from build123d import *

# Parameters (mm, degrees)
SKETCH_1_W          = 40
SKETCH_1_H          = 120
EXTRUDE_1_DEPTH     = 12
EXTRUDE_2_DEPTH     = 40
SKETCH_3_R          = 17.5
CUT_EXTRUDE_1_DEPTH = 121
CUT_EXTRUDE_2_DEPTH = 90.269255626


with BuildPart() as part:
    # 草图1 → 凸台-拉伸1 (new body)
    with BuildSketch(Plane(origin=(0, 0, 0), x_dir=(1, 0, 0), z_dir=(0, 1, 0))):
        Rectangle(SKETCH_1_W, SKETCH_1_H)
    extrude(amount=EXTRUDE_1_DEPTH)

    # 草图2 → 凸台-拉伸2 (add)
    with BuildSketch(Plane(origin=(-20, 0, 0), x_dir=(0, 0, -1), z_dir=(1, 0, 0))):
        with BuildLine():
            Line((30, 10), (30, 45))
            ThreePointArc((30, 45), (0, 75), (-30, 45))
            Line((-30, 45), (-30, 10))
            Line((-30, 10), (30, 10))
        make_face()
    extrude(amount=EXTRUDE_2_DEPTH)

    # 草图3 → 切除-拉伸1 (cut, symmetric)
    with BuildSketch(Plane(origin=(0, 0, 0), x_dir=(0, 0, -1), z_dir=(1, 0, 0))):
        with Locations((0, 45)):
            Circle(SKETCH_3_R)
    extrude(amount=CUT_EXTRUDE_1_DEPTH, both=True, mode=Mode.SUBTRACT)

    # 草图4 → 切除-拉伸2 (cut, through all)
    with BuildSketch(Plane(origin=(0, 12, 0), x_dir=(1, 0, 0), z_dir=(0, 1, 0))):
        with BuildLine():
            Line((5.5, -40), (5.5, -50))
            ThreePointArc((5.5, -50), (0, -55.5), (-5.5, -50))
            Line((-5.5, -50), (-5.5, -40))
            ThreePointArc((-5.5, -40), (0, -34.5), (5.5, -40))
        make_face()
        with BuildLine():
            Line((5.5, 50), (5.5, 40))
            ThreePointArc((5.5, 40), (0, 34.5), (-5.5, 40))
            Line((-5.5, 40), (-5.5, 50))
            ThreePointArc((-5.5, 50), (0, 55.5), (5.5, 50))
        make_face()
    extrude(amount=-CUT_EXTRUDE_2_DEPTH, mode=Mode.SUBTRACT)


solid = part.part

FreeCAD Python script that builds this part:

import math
import FreeCAD as App
import Part
import Sketcher
from FreeCAD import Vector


def add_polygon(sketch, points):
    """Adds a closed chain of lines whose ends are joined by coincident constraints."""
    first, n = sketch.GeometryCount, len(points)
    for a, b in zip(points, points[1:] + points[:1]):
        sketch.addGeometry(Part.LineSegment(App.Vector(*a, 0), App.Vector(*b, 0)), False)
    for i in range(n):
        sketch.addConstraint(Sketcher.Constraint("Coincident", first + i, 2, first + (i + 1) % n, 1))

doc = App.newDocument("Part")
params = doc.addObject("Spreadsheet::Sheet", "Params")
for row, (alias, value) in enumerate([
    ("sketch1_width", "40 mm"),
    ("sketch1_height", "120 mm"),
    ("pad1_length", "12 mm"),
    ("sketch2_radius", "30 mm"),
    ("sketch2_width", "35 mm"),
    ("pad2_length", "40 mm"),
    ("sketch3_diameter", "35 mm"),
    ("pocket1_length", "242 mm"),
    ("sketch4_radius", "5.5 mm"),
    ("sketch4_height", "10 mm"),
], start=1):
    params.set(f"A{row}", alias)
    params.set(f"B{row}", "=" + value)
    params.setAlias(f"B{row}", alias)

body = doc.addObject("PartDesign::Body", "Body")

# Sketch on XZ plane
sketch1 = body.newObject("Sketcher::SketchObject", "Sketch")
sketch1.AttachmentSupport = (doc.getObject("XZ_Plane"), [""])
sketch1.MapMode = "FlatFace"
add_polygon(sketch1, [(-20, -60), (-20, 60), (20, 60), (20, -60)])  # lines 0-3
sketch1.addConstraint(Sketcher.Constraint("Vertical", 0))
sketch1.addConstraint(Sketcher.Constraint("Horizontal", 1))
sketch1.addConstraint(Sketcher.Constraint("Vertical", 2))
sketch1.addConstraint(Sketcher.Constraint("Horizontal", 3))
sketch1.addConstraint(Sketcher.Constraint("Symmetric", 0, 2, 2, 2, -1, 1))
sketch1.addConstraint(Sketcher.Constraint("DistanceX", 1, 1, 1, 2, 40.0))
sketch1.addConstraint(Sketcher.Constraint("DistanceY", 0, 1, 0, 2, 120.0))
sketch1.setExpression("Constraints[9]", "Params.sketch1_width")
sketch1.setExpression("Constraints[10]", "Params.sketch1_height")
pad1 = body.newObject("PartDesign::Pad", "Pad")
pad1.Profile = sketch1
pad1.setExpression("Length", "Params.pad1_length")
pad1.Reversed = True

# Sketch on YZ plane
sketch2 = body.newObject("Sketcher::SketchObject", "Sketch001")
sketch2.AttachmentSupport = (doc.getObject("YZ_Plane"), [""])
sketch2.MapMode = "FlatFace"
sketch2.AttachmentOffset = App.Placement(Vector(0, 0, -20), App.Rotation())
sketch2.addGeometry(Part.LineSegment(Vector(10, -30, 0), Vector(45, -30, 0)), False)
sketch2.addGeometry(Part.ArcOfCircle(Part.Circle(Vector(45, 0, 0), Vector(0, 0, 1), 30), math.radians(-90), math.radians(90)), False)
sketch2.addGeometry(Part.LineSegment(Vector(45, 30, 0), Vector(10, 30, 0)), False)
sketch2.addGeometry(Part.LineSegment(Vector(10, 30, 0), Vector(10, -30, 0)), False)
sketch2.addConstraint(Sketcher.Constraint("Tangent", 0, 2, 1, 1))
sketch2.addConstraint(Sketcher.Constraint("Tangent", 1, 2, 2, 1))
sketch2.addConstraint(Sketcher.Constraint("Coincident", 2, 2, 3, 1))
sketch2.addConstraint(Sketcher.Constraint("Coincident", 3, 2, 0, 1))
sketch2.addConstraint(Sketcher.Constraint("Horizontal", 0))
sketch2.addConstraint(Sketcher.Constraint("Horizontal", 2))
sketch2.addConstraint(Sketcher.Constraint("Vertical", 3))
sketch2.addConstraint(Sketcher.Constraint("PointOnObject", 1, 3, -1))
sketch2.addConstraint(Sketcher.Constraint("Radius", 1, 30.0))
sketch2.addConstraint(Sketcher.Constraint("DistanceX", 0, 1, 0, 2, 35.0))
sketch2.addConstraint(Sketcher.Constraint("DistanceX", -1, 1, 1, 3, 45.0))
sketch2.setExpression("Constraints[8]", "Params.sketch2_radius")
sketch2.setExpression("Constraints[9]", "Params.sketch2_width")
pad2 = body.newObject("PartDesign::Pad", "Pad001")
pad2.Profile = sketch2
pad2.setExpression("Length", "Params.pad2_length")

# Sketch on YZ plane
sketch3 = body.newObject("Sketcher::SketchObject", "Sketch002")
sketch3.AttachmentSupport = (doc.getObject("YZ_Plane"), [""])
sketch3.MapMode = "FlatFace"
sketch3.addGeometry(Part.Circle(Vector(45, 0, 0), Vector(0, 0, 1), 17.5), False)
sketch3.addConstraint(Sketcher.Constraint("PointOnObject", 0, 3, -1))
sketch3.addConstraint(Sketcher.Constraint("Diameter", 0, 35.0))
sketch3.addConstraint(Sketcher.Constraint("DistanceX", -1, 1, 0, 3, 45.0))
sketch3.setExpression("Constraints[1]", "Params.sketch3_diameter")
pocket1 = body.newObject("PartDesign::Pocket", "Pocket")
pocket1.Profile = sketch3
pocket1.setExpression("Length", "Params.pocket1_length")
pocket1.Midplane = True

# Sketch on XZ plane
sketch4 = body.newObject("Sketcher::SketchObject", "Sketch003")
sketch4.AttachmentSupport = (doc.getObject("XZ_Plane"), [""])
sketch4.MapMode = "FlatFace"
sketch4.AttachmentOffset = App.Placement(Vector(0, 0, -12), App.Rotation())
sketch4.addGeometry(Part.LineSegment(Vector(5.5, 50, 0), Vector(5.5, 40, 0)), False)
sketch4.addGeometry(Part.ArcOfCircle(Part.Circle(Vector(0, 40, 0), Vector(0, 0, 1), 5.5), math.radians(180), math.radians(360)), False)
sketch4.addGeometry(Part.LineSegment(Vector(-5.5, 40, 0), Vector(-5.5, 50, 0)), False)
sketch4.addGeometry(Part.ArcOfCircle(Part.Circle(Vector(0, 50, 0), Vector(0, 0, 1), 5.5), math.radians(0), math.radians(180)), False)
sketch4.addGeometry(Part.LineSegment(Vector(5.5, -40, 0), Vector(5.5, -50, 0)), False)
sketch4.addGeometry(Part.ArcOfCircle(Part.Circle(Vector(0, -50, 0), Vector(0, 0, 1), 5.5), math.radians(180), math.radians(360)), False)
sketch4.addGeometry(Part.LineSegment(Vector(-5.5, -50, 0), Vector(-5.5, -40, 0)), False)
sketch4.addGeometry(Part.ArcOfCircle(Part.Circle(Vector(0, -40, 0), Vector(0, 0, 1), 5.5), math.radians(0), math.radians(180)), False)
sketch4.addConstraint(Sketcher.Constraint("Tangent", 0, 2, 1, 2))
sketch4.addConstraint(Sketcher.Constraint("Tangent", 1, 1, 2, 1))
sketch4.addConstraint(Sketcher.Constraint("Tangent", 2, 2, 3, 2))
sketch4.addConstraint(Sketcher.Constraint("Tangent", 3, 1, 0, 1))
sketch4.addConstraint(Sketcher.Constraint("Tangent", 4, 2, 5, 2))
sketch4.addConstraint(Sketcher.Constraint("Tangent", 5, 1, 6, 1))
sketch4.addConstraint(Sketcher.Constraint("Tangent", 6, 2, 7, 2))
sketch4.addConstraint(Sketcher.Constraint("Tangent", 7, 1, 4, 1))
sketch4.addConstraint(Sketcher.Constraint("Vertical", 0))
sketch4.addConstraint(Sketcher.Constraint("Vertical", 2))
sketch4.addConstraint(Sketcher.Constraint("Vertical", 4))
sketch4.addConstraint(Sketcher.Constraint("Vertical", 6))
sketch4.addConstraint(Sketcher.Constraint("Equal", 3, 5))
sketch4.addConstraint(Sketcher.Constraint("Symmetric", 3, 3, 5, 3, -1, 1))
sketch4.addConstraint(Sketcher.Constraint("Symmetric", 1, 3, 7, 3, -1))
sketch4.addConstraint(Sketcher.Constraint("Radius", 1, 5.5))
sketch4.addConstraint(Sketcher.Constraint("DistanceY", 0, 2, 0, 1, 10.0))
sketch4.addConstraint(Sketcher.Constraint("DistanceY", -1, 1, 1, 3, 40.0))
sketch4.setExpression("Constraints[15]", "Params.sketch4_radius")
sketch4.setExpression("Constraints[16]", "Params.sketch4_height")
pocket2 = body.newObject("PartDesign::Pocket", "Pocket001")
pocket2.Profile = sketch4
pocket2.Type = "ThroughAll"
pocket2.Reversed = True

doc.recompute()
